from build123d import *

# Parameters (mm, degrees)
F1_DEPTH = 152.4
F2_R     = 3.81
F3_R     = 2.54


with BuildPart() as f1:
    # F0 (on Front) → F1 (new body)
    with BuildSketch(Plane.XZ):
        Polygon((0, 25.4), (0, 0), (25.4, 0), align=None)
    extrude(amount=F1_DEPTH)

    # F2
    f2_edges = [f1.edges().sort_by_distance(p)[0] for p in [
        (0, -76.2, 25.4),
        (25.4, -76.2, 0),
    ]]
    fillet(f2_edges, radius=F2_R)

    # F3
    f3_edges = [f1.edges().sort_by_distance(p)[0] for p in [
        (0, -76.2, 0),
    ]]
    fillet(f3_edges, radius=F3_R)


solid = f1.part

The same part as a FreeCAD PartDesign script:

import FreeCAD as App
import Part
import Sketcher
Q = App.Units.Quantity


def edges_at(feature, points):
    """Names of the edges that pass closest to the given points."""
    edges = feature.Shape.Edges
    near = lambda p: min(range(len(edges)), key=lambda i: edges[i].distToShape(Part.Vertex(*p))[0])
    return sorted({f"Edge{near(p) + 1}" for p in points})

doc = App.newDocument("Part")
params = doc.addObject("Spreadsheet::Sheet", "Params")
for row, (alias, value) in enumerate([
    ("sketch1_width", "1 in"),
    ("pad1_length", "6 in"),
    ("fillet_radius", "0.15 in"),
    ("fillet2_radius", "0.1 in"),
], start=1):
    params.set(f"A{row}", alias)
    params.set(f"B{row}", "=" + value)
    params.setAlias(f"B{row}", alias)

body = doc.addObject("PartDesign::Body", "Body")

sketch1 = doc.addObject("Sketcher::SketchObject", "Sketch")
body.addObject(sketch1)
sketch1.AttachmentSupport = (doc.XZ_Plane, [""])
sketch1.MapMode = "FlatFace"
sketch1.addGeometry([
    Part.LineSegment(App.Vector(0, 25, 0), App.Vector(0, 0, 0)),
    Part.LineSegment(App.Vector(0, 0, 0), App.Vector(25, 0, 0)),
    Part.LineSegment(App.Vector(25, 0, 0), App.Vector(0, 25, 0)),
], False)
sketch1.addConstraint([
    Sketcher.Constraint("Coincident", 0, 2, 1, 1),
    Sketcher.Constraint("Coincident", 1, 2, 2, 1),
    Sketcher.Constraint("Coincident", 2, 2, 0, 1),
    Sketcher.Constraint("Vertical", 0),
    Sketcher.Constraint("Horizontal", 1),
    Sketcher.Constraint("Coincident", 0, 2, -1, 1),
    Sketcher.Constraint("Equal", 1, 0),
    Sketcher.Constraint("DistanceX", 1, 1, 1, 2, Q("1 in")),
])
sketch1.setExpression("Constraints[7]", "Params.sketch1_width")
pad1 = doc.addObject("PartDesign::Pad", "Pad")
body.addObject(pad1)
pad1.Profile = sketch1
pad1.setExpression("Length", "Params.pad1_length")
doc.recompute()

fillet = doc.addObject("PartDesign::Fillet", "Fillet")
body.addObject(fillet)
fillet.Base = (pad1, edges_at(pad1, [(0, -76.2, 25.4), (25.4, -76.2, 0)]))
fillet.setExpression("Radius", "Params.fillet_radius")
doc.recompute()

fillet2 = doc.addObject("PartDesign::Fillet", "Fillet001")
body.addObject(fillet2)
fillet2.Base = (fillet, edges_at(fillet, [(0, -76.2, 0)]))
fillet2.setExpression("Radius", "Params.fillet2_radius")

doc.recompute()
